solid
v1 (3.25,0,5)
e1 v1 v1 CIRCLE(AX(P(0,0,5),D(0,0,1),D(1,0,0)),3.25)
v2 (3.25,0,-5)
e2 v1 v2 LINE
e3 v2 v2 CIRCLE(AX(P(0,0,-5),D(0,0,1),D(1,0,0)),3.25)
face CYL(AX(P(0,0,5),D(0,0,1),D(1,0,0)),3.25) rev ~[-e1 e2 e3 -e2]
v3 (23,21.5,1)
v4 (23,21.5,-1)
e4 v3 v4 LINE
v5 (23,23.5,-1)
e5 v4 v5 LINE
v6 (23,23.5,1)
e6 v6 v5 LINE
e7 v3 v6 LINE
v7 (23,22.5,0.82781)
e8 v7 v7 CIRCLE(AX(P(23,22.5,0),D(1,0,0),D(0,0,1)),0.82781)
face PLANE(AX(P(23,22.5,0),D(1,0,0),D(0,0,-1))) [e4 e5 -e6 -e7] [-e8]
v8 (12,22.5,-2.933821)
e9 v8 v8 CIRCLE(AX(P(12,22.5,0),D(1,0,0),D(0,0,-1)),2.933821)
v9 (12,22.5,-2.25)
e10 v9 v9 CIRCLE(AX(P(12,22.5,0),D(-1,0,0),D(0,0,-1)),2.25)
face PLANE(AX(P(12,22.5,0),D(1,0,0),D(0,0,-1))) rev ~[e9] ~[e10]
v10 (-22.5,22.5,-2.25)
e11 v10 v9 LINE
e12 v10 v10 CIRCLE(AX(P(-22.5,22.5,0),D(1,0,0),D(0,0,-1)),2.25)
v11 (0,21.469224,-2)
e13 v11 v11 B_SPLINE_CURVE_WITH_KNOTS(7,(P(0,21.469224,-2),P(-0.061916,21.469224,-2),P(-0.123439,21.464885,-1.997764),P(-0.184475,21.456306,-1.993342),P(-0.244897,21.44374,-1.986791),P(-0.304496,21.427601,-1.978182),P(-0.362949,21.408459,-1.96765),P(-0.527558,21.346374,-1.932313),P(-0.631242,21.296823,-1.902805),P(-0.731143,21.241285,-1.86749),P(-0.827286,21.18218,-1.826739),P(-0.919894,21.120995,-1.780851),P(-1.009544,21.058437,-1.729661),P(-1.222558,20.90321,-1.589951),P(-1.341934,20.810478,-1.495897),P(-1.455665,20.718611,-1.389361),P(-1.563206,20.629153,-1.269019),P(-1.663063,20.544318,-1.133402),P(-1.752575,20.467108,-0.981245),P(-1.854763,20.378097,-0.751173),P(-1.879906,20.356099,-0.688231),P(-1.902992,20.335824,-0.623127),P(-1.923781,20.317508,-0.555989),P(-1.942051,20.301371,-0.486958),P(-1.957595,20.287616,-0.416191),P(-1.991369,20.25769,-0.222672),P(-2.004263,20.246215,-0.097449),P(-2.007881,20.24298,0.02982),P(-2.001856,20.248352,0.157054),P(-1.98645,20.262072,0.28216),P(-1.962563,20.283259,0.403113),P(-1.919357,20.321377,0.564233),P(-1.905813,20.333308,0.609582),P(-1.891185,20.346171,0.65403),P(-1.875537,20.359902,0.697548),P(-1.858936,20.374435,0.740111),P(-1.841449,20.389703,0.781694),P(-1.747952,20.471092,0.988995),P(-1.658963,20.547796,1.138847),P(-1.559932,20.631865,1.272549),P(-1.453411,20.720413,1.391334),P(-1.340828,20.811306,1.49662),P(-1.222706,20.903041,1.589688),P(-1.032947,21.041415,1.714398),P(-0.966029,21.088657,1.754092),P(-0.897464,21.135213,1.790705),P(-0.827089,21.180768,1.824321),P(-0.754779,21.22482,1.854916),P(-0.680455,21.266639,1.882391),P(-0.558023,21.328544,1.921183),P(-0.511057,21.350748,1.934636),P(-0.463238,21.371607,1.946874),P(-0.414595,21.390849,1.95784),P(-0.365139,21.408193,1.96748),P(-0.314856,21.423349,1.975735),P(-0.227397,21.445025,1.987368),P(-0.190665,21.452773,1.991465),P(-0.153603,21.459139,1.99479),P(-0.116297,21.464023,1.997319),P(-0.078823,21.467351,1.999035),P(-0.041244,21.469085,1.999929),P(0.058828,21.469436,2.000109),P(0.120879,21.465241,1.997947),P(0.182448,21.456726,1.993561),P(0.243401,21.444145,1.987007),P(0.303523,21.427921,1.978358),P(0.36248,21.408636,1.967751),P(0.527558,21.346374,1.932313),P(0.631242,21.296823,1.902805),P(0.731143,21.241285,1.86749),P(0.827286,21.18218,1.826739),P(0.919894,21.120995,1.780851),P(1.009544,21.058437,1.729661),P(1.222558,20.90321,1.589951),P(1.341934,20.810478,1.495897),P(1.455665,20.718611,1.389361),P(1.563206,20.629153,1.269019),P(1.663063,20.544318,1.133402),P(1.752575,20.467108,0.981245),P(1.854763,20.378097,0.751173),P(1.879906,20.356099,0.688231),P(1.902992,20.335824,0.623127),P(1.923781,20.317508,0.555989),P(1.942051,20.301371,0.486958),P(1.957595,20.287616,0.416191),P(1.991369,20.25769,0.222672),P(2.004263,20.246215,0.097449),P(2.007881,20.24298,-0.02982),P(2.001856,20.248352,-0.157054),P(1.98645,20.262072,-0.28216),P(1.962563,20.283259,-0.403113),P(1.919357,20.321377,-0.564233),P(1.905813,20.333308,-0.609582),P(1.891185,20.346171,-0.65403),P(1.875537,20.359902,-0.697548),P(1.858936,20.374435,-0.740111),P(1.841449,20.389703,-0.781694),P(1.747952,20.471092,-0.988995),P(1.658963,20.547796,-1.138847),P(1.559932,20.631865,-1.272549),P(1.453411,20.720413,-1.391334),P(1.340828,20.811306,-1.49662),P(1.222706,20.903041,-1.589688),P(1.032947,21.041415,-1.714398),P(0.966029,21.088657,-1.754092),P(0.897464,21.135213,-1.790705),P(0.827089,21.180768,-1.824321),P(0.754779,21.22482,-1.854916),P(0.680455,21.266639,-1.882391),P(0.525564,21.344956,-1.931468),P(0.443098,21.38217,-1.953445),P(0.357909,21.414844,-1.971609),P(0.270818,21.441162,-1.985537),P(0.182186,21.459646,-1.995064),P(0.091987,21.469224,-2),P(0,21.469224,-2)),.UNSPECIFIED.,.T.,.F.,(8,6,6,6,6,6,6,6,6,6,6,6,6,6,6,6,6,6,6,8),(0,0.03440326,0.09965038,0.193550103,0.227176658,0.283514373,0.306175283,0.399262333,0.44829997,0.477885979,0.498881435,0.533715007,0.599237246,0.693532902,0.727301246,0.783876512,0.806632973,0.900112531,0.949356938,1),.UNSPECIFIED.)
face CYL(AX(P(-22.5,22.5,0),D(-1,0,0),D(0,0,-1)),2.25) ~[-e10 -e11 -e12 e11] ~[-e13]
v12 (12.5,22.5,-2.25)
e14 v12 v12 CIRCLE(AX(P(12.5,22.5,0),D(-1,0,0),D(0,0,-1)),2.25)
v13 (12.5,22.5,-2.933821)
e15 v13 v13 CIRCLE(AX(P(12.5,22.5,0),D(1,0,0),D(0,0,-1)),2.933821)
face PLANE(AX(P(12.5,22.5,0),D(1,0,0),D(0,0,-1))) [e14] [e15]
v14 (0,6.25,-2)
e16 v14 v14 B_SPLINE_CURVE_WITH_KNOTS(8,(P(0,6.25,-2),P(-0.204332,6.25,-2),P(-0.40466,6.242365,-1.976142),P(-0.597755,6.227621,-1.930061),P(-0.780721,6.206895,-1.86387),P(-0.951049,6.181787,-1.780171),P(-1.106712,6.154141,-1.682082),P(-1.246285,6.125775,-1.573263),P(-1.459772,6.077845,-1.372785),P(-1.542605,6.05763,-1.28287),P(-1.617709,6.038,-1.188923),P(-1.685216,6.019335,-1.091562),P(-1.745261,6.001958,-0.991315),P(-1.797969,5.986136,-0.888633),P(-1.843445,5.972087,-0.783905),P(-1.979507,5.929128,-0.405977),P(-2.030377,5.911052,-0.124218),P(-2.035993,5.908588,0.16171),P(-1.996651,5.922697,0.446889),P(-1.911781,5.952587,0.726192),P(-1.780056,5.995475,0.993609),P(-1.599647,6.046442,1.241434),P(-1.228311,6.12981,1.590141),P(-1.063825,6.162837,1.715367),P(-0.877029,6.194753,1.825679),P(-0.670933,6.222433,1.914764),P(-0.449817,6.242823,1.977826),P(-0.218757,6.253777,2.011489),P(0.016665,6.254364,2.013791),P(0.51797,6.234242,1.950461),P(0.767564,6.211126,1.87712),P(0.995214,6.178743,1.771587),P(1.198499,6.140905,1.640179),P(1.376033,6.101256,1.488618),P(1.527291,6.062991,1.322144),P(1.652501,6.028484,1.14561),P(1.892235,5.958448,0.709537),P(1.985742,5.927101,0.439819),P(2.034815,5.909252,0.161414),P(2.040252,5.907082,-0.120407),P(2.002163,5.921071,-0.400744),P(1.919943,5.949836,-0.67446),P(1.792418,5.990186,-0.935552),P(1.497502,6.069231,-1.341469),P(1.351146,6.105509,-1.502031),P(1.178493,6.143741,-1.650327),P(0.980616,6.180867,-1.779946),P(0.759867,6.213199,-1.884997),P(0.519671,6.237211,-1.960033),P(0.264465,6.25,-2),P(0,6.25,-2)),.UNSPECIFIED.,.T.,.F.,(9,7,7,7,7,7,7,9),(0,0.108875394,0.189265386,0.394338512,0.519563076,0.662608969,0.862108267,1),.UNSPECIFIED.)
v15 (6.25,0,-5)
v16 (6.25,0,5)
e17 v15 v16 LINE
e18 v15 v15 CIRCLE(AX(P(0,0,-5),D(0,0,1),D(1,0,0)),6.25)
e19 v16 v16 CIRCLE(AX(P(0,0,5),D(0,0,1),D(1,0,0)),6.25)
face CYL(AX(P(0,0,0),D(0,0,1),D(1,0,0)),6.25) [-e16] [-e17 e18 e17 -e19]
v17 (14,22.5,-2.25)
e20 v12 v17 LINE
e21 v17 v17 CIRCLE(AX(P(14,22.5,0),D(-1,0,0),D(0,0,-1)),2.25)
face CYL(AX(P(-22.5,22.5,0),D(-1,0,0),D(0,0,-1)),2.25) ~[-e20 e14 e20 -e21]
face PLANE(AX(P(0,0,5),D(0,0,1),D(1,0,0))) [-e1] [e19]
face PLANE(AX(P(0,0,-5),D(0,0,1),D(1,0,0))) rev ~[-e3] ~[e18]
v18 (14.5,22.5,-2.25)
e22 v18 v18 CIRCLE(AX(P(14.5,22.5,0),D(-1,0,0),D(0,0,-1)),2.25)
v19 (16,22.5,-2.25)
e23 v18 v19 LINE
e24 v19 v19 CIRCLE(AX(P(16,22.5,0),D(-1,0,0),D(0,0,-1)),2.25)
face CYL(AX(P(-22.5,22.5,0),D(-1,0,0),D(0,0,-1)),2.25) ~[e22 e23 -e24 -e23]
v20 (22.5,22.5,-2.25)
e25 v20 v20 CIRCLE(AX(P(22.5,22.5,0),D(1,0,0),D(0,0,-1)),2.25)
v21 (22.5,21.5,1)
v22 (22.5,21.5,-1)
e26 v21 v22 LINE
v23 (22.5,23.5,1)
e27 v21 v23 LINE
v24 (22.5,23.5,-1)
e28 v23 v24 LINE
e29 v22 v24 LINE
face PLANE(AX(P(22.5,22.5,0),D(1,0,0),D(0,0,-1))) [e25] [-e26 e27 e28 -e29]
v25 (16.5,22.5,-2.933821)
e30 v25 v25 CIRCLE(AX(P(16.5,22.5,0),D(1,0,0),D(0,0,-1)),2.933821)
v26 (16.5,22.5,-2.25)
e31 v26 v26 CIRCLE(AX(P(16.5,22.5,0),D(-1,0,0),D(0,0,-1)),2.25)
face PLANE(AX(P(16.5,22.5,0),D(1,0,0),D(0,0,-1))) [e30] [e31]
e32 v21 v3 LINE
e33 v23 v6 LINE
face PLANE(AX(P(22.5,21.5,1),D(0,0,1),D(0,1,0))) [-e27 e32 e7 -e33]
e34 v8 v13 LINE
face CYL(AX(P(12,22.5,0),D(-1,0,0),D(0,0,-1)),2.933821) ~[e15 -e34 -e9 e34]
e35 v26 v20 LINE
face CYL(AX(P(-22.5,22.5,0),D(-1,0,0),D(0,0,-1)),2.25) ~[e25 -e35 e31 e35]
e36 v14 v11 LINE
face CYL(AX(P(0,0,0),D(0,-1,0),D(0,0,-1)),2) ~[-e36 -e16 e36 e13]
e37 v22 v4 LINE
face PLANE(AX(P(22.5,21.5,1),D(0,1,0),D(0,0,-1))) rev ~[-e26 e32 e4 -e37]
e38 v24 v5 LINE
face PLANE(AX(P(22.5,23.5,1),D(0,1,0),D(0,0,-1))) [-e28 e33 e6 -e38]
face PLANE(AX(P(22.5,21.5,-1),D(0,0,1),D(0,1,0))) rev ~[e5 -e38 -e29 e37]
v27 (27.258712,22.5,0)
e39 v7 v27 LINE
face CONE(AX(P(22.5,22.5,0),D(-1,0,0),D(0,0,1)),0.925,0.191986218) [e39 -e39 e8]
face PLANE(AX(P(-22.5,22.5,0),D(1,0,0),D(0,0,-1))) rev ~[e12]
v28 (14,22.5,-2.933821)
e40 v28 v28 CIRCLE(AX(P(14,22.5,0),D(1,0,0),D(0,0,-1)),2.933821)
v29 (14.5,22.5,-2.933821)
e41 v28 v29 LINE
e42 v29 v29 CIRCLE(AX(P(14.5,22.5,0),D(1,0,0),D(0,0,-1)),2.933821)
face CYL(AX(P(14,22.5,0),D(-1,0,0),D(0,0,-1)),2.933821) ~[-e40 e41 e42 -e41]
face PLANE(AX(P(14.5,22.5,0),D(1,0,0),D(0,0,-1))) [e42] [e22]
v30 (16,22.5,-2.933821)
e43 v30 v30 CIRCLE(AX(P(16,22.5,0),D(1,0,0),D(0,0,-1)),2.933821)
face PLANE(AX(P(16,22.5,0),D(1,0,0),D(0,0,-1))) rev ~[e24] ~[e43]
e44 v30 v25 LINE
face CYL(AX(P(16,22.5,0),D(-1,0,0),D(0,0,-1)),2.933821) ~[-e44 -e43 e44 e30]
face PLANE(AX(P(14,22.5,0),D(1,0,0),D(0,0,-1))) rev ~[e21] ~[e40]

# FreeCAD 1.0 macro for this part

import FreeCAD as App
import Part
import Sketcher

V = App.Vector
Q = App.Units.Quantity


def add_polygon(sketch, points):
    """Adds a closed chain of lines whose ends are joined by coincident constraints."""
    first, n = sketch.GeometryCount, len(points)
    for a, b in zip(points, points[1:] + points[:1]):
        sketch.addGeometry(Part.LineSegment(App.Vector(*a, 0), App.Vector(*b, 0)), False)
    for i in range(n):
        sketch.addConstraint(Sketcher.Constraint("Coincident", first + i, 2, first + (i + 1) % n, 1))

doc = App.newDocument("Part")
body = doc.addObject("PartDesign::Body", "Body")

# Sketch on XY plane
sketch1 = body.newObject("Sketcher::SketchObject", "Sketch")
sketch1.AttachmentSupport = (doc.getObject("XY_Plane"), [""])
sketch1.MapMode = "FlatFace"
sketch1.addGeometry(Part.Circle(V(0, 0, 0), V(0, 0, 1), 6), False)
sketch1.addConstraint([
    Sketcher.Constraint("Coincident", 0, 3, -1, 1),
    Sketcher.Constraint("Diameter", 0, 12.5),
])
pad1 = body.newObject("PartDesign::Pad", "Pad")
pad1.Profile = sketch1
pad1.Length = 10
pad1.Midplane = True

# Sketch on XZ plane
sketch2 = body.newObject("Sketcher::SketchObject", "Sketch001")
sketch2.AttachmentSupport = (doc.getObject("XZ_Plane"), [""])
sketch2.MapMode = "FlatFace"
sketch2.addGeometry(Part.Circle(V(0, 0, 0), V(0, 0, 1), 2), False)
sketch2.addConstraint([
    Sketcher.Constraint("Coincident", 0, 3, -1, 1),
    Sketcher.Constraint("Diameter", 0, 4.0),
])
pad2 = body.newObject("PartDesign::Pad", "Pad001")
pad2.Profile = sketch2
pad2.Length = 22.5
pad2.Reversed = True

# Sketch on YZ plane
sketch3 = body.newObject("Sketcher::SketchObject", "Sketch002")
sketch3.AttachmentSupport = (doc.getObject("YZ_Plane"), [""])
sketch3.MapMode = "FlatFace"
sketch3.addGeometry(Part.Circle(V(22.5, 0, 0), V(0, 0, 1), 2.2), False)
sketch3.addConstraint([
    Sketcher.Constraint("PointOnObject", 0, 3, -1),
    Sketcher.Constraint("Diameter", 0, 4.5),
    Sketcher.Constraint("DistanceX", -1, 1, 0, 3, 22.5),
])
pad3 = body.newObject("PartDesign::Pad", "Pad002")
pad3.Profile = sketch3
pad3.Type = "TwoLengths"
pad3.Length = 22.5
pad3.Length2 = 22.5

# Sketch on YZ plane
sketch4 = body.newObject("Sketcher::SketchObject", "Sketch003")
sketch4.AttachmentSupport = (doc.getObject("YZ_Plane"), [""])
sketch4.MapMode = "FlatFace"
sketch4.AttachmentOffset = App.Placement(V(0, 0, 12), App.Rotation())
sketch4.addGeometry(Part.Circle(V(22.5, 0, 0), V(0, 0, 1), 2.9), False)
sketch4.addConstraint([
    Sketcher.Constraint("PointOnObject", 0, 3, -1),
    Sketcher.Constraint("DistanceX", -1, 1, 0, 3, 22.5),
    Sketcher.Constraint("Diameter", 0, 5.867641),
])
pad4 = body.newObject("PartDesign::Pad", "Pad003")
pad4.Profile = sketch4
pad4.Length = 0.5
doc.recompute()

linearpattern = body.newObject("PartDesign::LinearPattern", "LinearPattern")
linearpattern.Originals = [pad4]
linearpattern.Direction = (doc.getObject("X_Axis"), [""])
linearpattern.Mode = "offset"
linearpattern.Offset = 2
linearpattern.Occurrences = 3
body.Tip = linearpattern

# Sketch on YZ plane
sketch5 = body.newObject("Sketcher::SketchObject", "Sketch004")
sketch5.AttachmentSupport = (doc.getObject("YZ_Plane"), [""])
sketch5.MapMode = "FlatFace"
sketch5.AttachmentOffset = App.Placement(V(0, 0, 22.5), App.Rotation())
add_polygon(sketch5, [(23.5, 1), (21.5, 1), (21.5, -1), (23.5, -1)])  # lines 0-3
sketch5.addConstraint([
    Sketcher.Constraint("Horizontal", 0),
    Sketcher.Constraint("Vertical", 1),
    Sketcher.Constraint("Horizontal", 2),
    Sketcher.Constraint("Vertical", 3),
    Sketcher.Constraint("Equal", 2, 1),
    Sketcher.Constraint("DistanceX", 0, 2, 0, 1, 2.0),
    Sketcher.Constraint("DistanceY", -1, 1, 0, 2, 1.0),
    Sketcher.Constraint("DistanceX", -1, 1, 0, 2, 21.5),
])
pad5 = body.newObject("PartDesign::Pad", "Pad004")
pad5.Profile = sketch5
pad5.Length = 0.5

# Sketch on XZ plane
sketch6 = body.newObject("Sketcher::SketchObject", "Sketch005")
sketch6.AttachmentSupport = (doc.getObject("XZ_Plane"), [""])
sketch6.MapMode = "FlatFace"
sketch6.AttachmentOffset = App.Placement(V(0, 0, -22.5), App.Rotation())
add_polygon(sketch6, [(22.5, 0), (22.5, 0.9), (27.3, 0)])  # lines 0-2
sketch6.addConstraint([
    Sketcher.Constraint("Vertical", 0),
    Sketcher.Constraint("Horizontal", 2),
    Sketcher.Constraint("PointOnObject", 1, 2, -1),
    Sketcher.Constraint("Angle", 1, Q("-11 deg")),
    Sketcher.Constraint("DistanceX", -1, 1, 0, 2, 22.5),
    Sketcher.Constraint("DistanceY", 0, 1, 0, 2, 0.925),
])
revolution = body.newObject("PartDesign::Revolution", "Revolution")
revolution.Profile = sketch6
revolution.ReferenceAxis = (sketch6, ["H_Axis"])
revolution.Angle = 360

# Sketch on XY plane
sketch7 = body.newObject("Sketcher::SketchObject", "Sketch006")
sketch7.AttachmentSupport = (doc.getObject("XY_Plane"), [""])
sketch7.MapMode = "FlatFace"
sketch7.AttachmentOffset = App.Placement(V(0, 0, 5), App.Rotation())
sketch7.addGeometry(Part.Circle(V(0, 0, 0), V(0, 0, 1), 3.2), False)
sketch7.addConstraint([
    Sketcher.Constraint("Coincident", 0, 3, -1, 1),
    Sketcher.Constraint("Diameter", 0, 6.5),
])
pocket1 = body.newObject("PartDesign::Pocket", "Pocket")
pocket1.Profile = sketch7
pocket1.Type = "ThroughAll"

doc.recompute()
